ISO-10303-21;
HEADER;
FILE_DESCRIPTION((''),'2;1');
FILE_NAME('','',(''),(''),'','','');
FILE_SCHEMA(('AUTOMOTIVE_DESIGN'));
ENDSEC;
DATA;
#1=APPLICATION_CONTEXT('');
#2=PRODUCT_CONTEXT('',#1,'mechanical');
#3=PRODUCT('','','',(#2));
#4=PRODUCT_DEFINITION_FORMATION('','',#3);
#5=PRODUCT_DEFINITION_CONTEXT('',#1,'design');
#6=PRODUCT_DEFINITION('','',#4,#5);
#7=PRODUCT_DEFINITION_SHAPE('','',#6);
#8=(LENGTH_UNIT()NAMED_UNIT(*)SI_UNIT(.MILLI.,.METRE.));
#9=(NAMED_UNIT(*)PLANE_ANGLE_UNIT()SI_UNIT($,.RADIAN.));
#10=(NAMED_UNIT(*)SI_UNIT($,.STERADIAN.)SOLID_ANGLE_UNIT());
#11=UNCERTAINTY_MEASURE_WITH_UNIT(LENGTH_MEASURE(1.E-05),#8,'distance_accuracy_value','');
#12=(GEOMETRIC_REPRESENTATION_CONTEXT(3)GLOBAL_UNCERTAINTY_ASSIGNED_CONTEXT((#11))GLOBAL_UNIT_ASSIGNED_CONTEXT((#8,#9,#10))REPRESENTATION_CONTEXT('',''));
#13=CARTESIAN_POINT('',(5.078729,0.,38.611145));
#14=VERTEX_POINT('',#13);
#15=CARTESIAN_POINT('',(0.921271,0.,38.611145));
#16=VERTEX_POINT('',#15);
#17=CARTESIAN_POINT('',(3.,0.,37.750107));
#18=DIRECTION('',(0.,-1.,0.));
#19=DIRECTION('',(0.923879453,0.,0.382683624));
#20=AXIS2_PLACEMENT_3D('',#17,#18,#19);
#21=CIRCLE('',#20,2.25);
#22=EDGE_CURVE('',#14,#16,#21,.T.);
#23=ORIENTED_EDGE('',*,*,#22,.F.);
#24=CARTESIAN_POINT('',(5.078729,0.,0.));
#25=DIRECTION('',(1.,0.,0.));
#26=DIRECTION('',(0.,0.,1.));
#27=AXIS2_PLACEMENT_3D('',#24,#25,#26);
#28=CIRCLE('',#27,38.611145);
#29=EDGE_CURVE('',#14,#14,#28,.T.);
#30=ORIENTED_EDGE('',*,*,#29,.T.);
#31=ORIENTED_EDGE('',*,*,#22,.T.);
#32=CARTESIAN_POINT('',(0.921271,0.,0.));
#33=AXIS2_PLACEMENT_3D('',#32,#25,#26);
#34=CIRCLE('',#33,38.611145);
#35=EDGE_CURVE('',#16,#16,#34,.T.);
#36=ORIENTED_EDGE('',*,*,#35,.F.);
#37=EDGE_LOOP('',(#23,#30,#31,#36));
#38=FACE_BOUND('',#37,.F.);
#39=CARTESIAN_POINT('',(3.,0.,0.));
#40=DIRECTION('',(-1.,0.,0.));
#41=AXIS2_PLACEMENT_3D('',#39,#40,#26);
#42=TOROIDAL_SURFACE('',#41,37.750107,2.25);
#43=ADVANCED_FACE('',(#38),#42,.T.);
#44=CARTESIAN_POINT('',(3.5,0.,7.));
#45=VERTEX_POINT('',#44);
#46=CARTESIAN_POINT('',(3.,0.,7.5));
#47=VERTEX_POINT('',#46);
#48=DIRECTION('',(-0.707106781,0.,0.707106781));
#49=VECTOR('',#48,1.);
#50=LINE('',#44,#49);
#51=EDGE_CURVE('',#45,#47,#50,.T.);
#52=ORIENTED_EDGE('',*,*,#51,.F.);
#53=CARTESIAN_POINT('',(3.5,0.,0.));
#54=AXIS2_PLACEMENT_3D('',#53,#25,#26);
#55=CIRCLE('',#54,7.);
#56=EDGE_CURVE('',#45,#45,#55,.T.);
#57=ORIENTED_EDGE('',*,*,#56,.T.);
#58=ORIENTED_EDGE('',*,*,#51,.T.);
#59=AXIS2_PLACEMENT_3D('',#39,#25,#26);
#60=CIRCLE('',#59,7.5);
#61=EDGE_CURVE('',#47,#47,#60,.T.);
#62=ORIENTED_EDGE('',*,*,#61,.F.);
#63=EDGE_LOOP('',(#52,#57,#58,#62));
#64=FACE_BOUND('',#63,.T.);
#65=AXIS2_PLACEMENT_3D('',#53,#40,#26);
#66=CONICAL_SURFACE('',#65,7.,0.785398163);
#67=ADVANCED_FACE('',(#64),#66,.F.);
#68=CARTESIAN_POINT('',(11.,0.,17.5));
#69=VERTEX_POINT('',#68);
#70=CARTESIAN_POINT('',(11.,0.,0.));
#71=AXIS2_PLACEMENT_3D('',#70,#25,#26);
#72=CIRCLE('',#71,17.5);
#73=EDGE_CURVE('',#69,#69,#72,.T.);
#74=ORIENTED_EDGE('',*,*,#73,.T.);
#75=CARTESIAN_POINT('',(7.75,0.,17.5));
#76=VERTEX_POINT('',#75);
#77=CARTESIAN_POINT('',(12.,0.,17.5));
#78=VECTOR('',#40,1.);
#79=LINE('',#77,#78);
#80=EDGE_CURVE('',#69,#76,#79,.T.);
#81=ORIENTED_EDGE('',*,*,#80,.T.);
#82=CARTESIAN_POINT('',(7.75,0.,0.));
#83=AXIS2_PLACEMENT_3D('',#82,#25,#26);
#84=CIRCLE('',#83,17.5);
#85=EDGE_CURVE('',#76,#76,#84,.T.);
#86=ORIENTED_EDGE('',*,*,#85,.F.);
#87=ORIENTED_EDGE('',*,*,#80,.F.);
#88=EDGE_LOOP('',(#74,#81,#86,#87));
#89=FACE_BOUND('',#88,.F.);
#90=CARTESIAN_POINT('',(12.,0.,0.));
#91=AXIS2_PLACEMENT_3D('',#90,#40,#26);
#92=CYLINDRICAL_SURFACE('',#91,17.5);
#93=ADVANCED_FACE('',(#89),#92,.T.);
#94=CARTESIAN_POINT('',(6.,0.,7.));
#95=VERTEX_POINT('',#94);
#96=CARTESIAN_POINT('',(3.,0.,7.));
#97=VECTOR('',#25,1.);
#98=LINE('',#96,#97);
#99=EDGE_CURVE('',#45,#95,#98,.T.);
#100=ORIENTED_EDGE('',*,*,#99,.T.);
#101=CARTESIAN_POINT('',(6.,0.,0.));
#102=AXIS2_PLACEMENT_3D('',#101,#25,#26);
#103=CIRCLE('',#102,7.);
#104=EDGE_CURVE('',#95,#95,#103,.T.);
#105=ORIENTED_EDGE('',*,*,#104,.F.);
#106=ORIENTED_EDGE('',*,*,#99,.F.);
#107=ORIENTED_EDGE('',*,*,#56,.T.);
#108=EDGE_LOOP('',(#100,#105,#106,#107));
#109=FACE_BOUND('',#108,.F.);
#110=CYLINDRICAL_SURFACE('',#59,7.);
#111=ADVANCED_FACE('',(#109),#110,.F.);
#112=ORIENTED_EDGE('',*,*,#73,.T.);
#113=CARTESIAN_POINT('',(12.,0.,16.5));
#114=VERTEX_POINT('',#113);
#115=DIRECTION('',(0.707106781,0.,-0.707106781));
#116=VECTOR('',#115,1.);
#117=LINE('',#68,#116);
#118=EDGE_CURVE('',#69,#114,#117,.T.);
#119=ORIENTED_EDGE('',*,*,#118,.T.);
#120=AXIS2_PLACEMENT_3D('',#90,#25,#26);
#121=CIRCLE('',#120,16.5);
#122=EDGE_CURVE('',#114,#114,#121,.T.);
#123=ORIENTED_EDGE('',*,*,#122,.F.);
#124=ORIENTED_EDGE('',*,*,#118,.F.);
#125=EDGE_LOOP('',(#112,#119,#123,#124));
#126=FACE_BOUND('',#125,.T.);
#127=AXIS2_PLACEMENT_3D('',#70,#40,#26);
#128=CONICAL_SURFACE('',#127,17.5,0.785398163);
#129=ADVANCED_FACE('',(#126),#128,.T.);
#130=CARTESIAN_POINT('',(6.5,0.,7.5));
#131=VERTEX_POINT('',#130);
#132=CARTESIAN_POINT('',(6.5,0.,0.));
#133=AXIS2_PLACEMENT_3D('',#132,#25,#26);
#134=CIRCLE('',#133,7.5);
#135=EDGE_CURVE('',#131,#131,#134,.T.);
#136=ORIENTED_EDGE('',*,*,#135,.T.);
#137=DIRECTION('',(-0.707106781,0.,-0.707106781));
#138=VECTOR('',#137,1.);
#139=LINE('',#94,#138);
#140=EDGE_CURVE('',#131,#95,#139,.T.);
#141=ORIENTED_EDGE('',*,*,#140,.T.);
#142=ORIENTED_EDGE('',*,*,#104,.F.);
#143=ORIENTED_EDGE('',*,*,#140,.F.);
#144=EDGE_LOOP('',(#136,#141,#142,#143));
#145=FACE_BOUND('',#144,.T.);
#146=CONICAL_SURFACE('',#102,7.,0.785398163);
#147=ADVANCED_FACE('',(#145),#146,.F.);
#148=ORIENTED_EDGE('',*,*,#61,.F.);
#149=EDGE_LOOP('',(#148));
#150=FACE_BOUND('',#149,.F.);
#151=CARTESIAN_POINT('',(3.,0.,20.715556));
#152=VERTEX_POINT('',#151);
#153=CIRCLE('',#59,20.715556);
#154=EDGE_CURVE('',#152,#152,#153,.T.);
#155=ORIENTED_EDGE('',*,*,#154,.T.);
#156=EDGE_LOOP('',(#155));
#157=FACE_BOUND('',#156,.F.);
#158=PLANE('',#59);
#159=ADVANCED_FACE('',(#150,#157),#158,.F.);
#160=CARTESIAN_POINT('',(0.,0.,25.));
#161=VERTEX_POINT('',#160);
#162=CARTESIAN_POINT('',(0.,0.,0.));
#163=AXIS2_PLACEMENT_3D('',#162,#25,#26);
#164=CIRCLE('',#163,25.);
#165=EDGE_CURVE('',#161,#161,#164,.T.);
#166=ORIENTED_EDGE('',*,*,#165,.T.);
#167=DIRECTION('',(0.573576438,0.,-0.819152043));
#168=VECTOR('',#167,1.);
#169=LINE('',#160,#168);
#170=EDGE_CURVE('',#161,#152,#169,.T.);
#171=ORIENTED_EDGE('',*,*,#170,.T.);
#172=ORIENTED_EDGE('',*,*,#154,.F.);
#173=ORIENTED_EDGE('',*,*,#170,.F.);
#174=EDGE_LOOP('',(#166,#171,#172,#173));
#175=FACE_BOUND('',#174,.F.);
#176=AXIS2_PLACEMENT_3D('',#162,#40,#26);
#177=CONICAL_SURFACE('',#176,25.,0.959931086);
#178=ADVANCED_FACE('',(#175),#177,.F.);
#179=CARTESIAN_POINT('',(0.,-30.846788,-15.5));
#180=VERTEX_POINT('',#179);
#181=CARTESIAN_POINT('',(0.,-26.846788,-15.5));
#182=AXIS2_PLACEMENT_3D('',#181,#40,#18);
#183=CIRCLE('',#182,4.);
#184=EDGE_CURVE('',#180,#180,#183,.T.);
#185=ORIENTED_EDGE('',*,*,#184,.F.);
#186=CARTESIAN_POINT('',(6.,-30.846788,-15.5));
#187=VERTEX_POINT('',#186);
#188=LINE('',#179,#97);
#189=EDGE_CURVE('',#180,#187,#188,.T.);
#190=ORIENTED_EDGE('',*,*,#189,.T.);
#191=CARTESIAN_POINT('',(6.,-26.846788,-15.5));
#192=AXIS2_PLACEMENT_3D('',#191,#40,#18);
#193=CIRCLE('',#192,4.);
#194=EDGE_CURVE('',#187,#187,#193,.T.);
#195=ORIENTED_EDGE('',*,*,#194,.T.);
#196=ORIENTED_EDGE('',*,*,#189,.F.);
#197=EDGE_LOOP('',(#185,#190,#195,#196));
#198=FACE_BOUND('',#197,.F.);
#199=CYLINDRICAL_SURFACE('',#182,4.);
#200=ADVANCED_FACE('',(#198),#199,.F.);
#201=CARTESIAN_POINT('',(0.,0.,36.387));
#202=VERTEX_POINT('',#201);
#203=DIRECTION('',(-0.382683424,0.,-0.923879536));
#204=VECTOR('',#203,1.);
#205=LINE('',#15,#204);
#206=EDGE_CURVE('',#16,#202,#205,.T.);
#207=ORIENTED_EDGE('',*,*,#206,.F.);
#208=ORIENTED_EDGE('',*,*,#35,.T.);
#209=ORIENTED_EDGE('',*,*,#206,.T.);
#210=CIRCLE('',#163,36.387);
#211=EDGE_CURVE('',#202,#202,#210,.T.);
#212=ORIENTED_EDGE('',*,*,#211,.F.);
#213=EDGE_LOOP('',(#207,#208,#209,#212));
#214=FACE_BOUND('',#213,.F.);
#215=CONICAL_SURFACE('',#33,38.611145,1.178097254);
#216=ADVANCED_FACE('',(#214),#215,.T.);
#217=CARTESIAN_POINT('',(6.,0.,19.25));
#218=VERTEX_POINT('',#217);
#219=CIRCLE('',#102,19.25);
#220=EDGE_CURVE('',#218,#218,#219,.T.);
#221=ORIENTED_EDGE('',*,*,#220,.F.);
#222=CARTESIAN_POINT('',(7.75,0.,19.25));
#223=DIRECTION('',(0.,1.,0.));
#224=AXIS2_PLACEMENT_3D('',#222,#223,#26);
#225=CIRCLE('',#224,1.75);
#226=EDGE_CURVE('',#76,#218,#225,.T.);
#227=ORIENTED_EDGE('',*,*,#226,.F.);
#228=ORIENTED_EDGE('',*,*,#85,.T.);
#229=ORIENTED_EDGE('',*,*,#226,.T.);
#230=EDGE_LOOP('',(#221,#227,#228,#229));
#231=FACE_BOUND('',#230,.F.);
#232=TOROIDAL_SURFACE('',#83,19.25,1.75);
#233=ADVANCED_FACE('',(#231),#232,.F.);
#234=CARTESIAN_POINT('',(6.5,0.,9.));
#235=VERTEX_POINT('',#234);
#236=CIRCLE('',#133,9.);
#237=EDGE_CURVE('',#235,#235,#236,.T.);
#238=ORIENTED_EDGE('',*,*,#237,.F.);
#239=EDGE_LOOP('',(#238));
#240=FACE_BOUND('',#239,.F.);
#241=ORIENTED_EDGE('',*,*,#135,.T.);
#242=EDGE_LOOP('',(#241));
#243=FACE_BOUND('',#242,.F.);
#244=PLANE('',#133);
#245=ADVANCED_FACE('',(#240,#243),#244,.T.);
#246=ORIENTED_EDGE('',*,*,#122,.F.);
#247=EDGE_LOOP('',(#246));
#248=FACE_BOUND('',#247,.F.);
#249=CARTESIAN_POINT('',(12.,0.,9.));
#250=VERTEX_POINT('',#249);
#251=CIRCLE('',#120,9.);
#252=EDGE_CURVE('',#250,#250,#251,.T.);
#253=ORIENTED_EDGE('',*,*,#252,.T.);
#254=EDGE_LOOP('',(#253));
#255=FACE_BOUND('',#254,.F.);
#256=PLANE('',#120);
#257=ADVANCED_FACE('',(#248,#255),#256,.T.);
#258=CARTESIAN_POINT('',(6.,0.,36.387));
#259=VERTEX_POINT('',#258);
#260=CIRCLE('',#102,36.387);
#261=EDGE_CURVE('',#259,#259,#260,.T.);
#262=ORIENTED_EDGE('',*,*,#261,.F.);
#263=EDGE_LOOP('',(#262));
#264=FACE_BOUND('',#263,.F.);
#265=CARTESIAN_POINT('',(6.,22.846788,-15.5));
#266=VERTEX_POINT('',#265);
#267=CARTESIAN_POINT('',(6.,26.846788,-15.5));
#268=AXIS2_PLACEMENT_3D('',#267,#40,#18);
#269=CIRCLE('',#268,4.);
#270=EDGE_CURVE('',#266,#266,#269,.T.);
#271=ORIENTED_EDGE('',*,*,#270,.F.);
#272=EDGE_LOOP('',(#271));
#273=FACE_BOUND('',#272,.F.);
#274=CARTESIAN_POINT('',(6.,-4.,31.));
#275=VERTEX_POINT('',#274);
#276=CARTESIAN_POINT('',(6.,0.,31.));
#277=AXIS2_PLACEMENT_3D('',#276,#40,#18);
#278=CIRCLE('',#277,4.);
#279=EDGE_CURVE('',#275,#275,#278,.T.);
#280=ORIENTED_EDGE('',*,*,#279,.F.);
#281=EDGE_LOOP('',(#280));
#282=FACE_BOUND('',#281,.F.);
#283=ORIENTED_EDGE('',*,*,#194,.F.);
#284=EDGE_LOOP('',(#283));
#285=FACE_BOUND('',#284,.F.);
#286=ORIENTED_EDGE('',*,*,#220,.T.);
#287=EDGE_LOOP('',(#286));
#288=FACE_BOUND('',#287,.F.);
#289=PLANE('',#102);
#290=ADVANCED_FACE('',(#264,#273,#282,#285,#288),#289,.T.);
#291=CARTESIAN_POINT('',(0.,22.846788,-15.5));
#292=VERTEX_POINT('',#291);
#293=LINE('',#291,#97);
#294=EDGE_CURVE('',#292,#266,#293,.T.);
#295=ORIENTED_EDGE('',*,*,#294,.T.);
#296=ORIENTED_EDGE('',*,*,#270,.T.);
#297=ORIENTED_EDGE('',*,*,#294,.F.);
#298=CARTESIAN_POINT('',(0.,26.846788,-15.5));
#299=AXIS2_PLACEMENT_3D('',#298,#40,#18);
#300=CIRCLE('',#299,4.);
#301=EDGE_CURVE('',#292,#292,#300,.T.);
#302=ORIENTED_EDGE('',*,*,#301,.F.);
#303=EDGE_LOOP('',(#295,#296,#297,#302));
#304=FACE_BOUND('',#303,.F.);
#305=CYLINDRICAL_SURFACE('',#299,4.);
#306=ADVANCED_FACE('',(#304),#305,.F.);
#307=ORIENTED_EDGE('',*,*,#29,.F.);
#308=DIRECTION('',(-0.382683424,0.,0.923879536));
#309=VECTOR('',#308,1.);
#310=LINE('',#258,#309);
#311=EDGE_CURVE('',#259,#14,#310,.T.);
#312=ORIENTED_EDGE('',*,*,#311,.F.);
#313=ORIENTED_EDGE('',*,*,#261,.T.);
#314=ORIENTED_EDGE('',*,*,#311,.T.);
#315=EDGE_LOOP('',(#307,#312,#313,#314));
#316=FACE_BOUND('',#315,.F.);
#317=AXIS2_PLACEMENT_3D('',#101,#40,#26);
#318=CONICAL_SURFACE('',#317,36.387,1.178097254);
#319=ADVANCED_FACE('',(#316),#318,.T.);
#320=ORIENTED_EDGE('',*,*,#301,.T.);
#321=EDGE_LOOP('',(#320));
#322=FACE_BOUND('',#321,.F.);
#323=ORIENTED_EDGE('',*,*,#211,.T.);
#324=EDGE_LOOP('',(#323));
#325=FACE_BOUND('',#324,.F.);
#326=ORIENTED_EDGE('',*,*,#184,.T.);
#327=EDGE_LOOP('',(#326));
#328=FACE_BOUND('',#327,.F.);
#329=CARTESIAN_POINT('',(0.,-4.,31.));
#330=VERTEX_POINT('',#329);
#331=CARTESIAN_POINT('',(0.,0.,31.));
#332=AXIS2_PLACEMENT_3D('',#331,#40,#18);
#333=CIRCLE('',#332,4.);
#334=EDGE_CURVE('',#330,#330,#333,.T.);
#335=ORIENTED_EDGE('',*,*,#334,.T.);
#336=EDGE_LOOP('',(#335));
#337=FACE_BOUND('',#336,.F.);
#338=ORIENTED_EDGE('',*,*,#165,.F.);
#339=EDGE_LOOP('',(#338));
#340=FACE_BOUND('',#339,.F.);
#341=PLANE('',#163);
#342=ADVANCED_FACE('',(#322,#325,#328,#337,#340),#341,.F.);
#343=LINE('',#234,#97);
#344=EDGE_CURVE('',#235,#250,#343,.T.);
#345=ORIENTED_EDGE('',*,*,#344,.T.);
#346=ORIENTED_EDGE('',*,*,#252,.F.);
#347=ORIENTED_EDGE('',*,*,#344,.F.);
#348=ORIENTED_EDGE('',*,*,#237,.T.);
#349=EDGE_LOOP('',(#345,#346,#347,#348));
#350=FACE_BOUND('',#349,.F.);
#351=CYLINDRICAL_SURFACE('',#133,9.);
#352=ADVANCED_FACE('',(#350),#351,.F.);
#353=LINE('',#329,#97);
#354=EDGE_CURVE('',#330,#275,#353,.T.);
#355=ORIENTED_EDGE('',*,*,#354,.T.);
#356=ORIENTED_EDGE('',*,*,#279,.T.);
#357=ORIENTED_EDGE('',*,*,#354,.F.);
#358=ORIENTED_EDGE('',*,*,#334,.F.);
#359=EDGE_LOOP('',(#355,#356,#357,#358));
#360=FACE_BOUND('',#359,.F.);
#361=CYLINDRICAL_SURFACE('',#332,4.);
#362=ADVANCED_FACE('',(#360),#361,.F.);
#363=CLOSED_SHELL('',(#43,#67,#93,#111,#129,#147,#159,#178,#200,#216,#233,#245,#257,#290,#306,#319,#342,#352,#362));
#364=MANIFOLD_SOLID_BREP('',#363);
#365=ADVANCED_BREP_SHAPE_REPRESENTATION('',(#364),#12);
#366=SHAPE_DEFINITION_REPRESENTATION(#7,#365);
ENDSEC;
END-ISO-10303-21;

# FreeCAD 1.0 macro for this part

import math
import FreeCAD as App
import Part
import Sketcher

V = App.Vector
Q = App.Units.Quantity


def edges_at(feature, points):
    """Names of the edges that pass closest to the given points."""
    edges = feature.Shape.Edges
    near = lambda p: min(range(len(edges)), key=lambda i: edges[i].distToShape(Part.Vertex(*p))[0])
    return sorted({f"Edge{near(p) + 1}" for p in points})

doc = App.newDocument("Part")
body = doc.addObject("PartDesign::Body", "Body")

# Sketch on XZ plane
sketch1 = body.newObject("Sketcher::SketchObject", "Sketch")
sketch1.AttachmentSupport = (doc.getObject("XZ_Plane"), [""])
sketch1.MapMode = "FlatFace"
sketch1.addGeometry([
    Part.LineSegment(V(0, 36.387, 0), V(0, 25, 0)),  # 0
    Part.LineSegment(V(0, 25, 0), V(3, 20.715556, 0)),  # 1
    Part.LineSegment(V(3, 20.715556, 0), V(3, 7, 0)),  # 2
    Part.LineSegment(V(3, 7, 0), V(6.5, 7, 0)),  # 3
    Part.LineSegment(V(6.5, 7, 0), V(6.5, 9, 0)),  # 4
    Part.LineSegment(V(6.5, 9, 0), V(12, 9, 0)),  # 5
    Part.LineSegment(V(12, 9, 0), V(12, 17.5, 0)),  # 6
    Part.LineSegment(V(12, 17.5, 0), V(6, 17.5, 0)),  # 7
    Part.LineSegment(V(6, 17.5, 0), V(6, 36.387, 0)),  # 8
    Part.LineSegment(V(6, 36.387, 0), V(5.078729, 38.611145, 0)),  # 9
    Part.ArcOfCircle(Part.Circle(V(3, 37.750107, 0), V(0, 0, 1), 2.25), math.radians(22.500012), math.radians(157.499988)),  # 10
    Part.LineSegment(V(0.921271, 38.611145, 0), V(0, 36.387, 0)),  # 11
], False)
sketch1.addConstraint([
    Sketcher.Constraint("Coincident", 0, 2, 1, 1),
    Sketcher.Constraint("Coincident", 1, 2, 2, 1),
    Sketcher.Constraint("Coincident", 2, 2, 3, 1),
    Sketcher.Constraint("Coincident", 3, 2, 4, 1),
    Sketcher.Constraint("Coincident", 4, 2, 5, 1),
    Sketcher.Constraint("Coincident", 5, 2, 6, 1),
    Sketcher.Constraint("Coincident", 6, 2, 7, 1),
    Sketcher.Constraint("Coincident", 7, 2, 8, 1),
    Sketcher.Constraint("Coincident", 8, 2, 9, 1),
    Sketcher.Constraint("Tangent", 9, 2, 10, 1),
    Sketcher.Constraint("Tangent", 10, 2, 11, 1),
    Sketcher.Constraint("Coincident", 11, 2, 0, 1),
    Sketcher.Constraint("Vertical", 0),
    Sketcher.Constraint("Vertical", 2),
    Sketcher.Constraint("Horizontal", 3),
    Sketcher.Constraint("Vertical", 4),
    Sketcher.Constraint("Horizontal", 5),
    Sketcher.Constraint("Vertical", 6),
    Sketcher.Constraint("Horizontal", 7),
    Sketcher.Constraint("Vertical", 8),
    Sketcher.Constraint("PointOnObject", 0, 2, -2),
    Sketcher.Constraint("Horizontal", 9, 2, 10, 2),
    Sketcher.Constraint("Horizontal", 8, 2, 11, 2),
    Sketcher.Constraint("Vertical", 10, 3, 1, 2),
    Sketcher.Constraint("DistanceX", 7, 2, 7, 1, 6.0),
    Sketcher.Constraint("DistanceY", 4, 1, 4, 2, 2.0),
    Sketcher.Constraint("Angle", 1, Q("-55 deg")),
    Sketcher.Constraint("Radius", 10, 2.25),
    Sketcher.Constraint("DistanceX", 3, 1, 3, 2, 3.5),
    Sketcher.Constraint("DistanceX", 5, 1, 5, 2, 5.5),
    Sketcher.Constraint("DistanceY", 6, 1, 6, 2, 8.5),
    Sketcher.Constraint("DistanceY", -1, 1, 0, 2, 25.0),
    Sketcher.Constraint("DistanceY", -1, 1, 2, 2, 7.0),
    Sketcher.Constraint("Angle", 9, Q("112.499999 deg")),
    Sketcher.Constraint("DistanceY", 0, 2, 0, 1, 11.387),
])
revolution = body.newObject("PartDesign::Revolution", "Revolution")
revolution.Profile = sketch1
revolution.ReferenceAxis = (sketch1, ["H_Axis"])
revolution.Angle = 360
doc.recompute()

fillet = body.newObject("PartDesign::Fillet", "Fillet")
fillet.Base = (revolution, edges_at(revolution, [(6, 0, -17.5)]))
fillet.Radius = 1.75
doc.recompute()

chamfer = body.newObject("PartDesign::Chamfer", "Chamfer")
chamfer.Base = (fillet, edges_at(fillet, [(12, 0, -17.5)]))
chamfer.Size = 1

# Sketch on YZ plane
sketch2 = body.newObject("Sketcher::SketchObject", "Sketch001")
sketch2.AttachmentSupport = (doc.getObject("YZ_Plane"), [""])
sketch2.MapMode = "FlatFace"
sketch2.addGeometry([
    Part.Circle(V(0, 31, 0), V(0, 0, 1), 4),
    Part.Circle(V(26.846788, -15.5, 0), V(0, 0, 1), 4),
    Part.Circle(V(-26.846788, -15.5, 0), V(0, 0, 1), 4),
], False)
sketch2.addConstraint([
    Sketcher.Constraint("Equal", 0, 1),
    Sketcher.Constraint("Equal", 1, 2),
    Sketcher.Constraint("Symmetric", 1, 3, 2, 3, -2),
    Sketcher.Constraint("PointOnObject", 0, 3, -2),
    Sketcher.Constraint("Diameter", 0, 8.0),
    Sketcher.Constraint("DistanceY", -1, 1, 0, 3, 31.0),
    Sketcher.Constraint("DistanceY", 1, 3, -1, 1, 15.5),
    Sketcher.Constraint("DistanceX", -1, 1, 1, 3, 26.846788),
])
pocket1 = body.newObject("PartDesign::Pocket", "Pocket")
pocket1.Profile = sketch2
pocket1.Length = 25
pocket1.Reversed = True
doc.recompute()

chamfer2 = body.newObject("PartDesign::Chamfer", "Chamfer001")
chamfer2.Base = (pocket1, edges_at(pocket1, [(6.5, 0, -7)]))
chamfer2.Size = 0.5
doc.recompute()

chamfer3 = body.newObject("PartDesign::Chamfer", "Chamfer002")
chamfer3.Base = (chamfer2, edges_at(chamfer2, [(3, 0, -7)]))
chamfer3.Size = 0.5

doc.recompute()
